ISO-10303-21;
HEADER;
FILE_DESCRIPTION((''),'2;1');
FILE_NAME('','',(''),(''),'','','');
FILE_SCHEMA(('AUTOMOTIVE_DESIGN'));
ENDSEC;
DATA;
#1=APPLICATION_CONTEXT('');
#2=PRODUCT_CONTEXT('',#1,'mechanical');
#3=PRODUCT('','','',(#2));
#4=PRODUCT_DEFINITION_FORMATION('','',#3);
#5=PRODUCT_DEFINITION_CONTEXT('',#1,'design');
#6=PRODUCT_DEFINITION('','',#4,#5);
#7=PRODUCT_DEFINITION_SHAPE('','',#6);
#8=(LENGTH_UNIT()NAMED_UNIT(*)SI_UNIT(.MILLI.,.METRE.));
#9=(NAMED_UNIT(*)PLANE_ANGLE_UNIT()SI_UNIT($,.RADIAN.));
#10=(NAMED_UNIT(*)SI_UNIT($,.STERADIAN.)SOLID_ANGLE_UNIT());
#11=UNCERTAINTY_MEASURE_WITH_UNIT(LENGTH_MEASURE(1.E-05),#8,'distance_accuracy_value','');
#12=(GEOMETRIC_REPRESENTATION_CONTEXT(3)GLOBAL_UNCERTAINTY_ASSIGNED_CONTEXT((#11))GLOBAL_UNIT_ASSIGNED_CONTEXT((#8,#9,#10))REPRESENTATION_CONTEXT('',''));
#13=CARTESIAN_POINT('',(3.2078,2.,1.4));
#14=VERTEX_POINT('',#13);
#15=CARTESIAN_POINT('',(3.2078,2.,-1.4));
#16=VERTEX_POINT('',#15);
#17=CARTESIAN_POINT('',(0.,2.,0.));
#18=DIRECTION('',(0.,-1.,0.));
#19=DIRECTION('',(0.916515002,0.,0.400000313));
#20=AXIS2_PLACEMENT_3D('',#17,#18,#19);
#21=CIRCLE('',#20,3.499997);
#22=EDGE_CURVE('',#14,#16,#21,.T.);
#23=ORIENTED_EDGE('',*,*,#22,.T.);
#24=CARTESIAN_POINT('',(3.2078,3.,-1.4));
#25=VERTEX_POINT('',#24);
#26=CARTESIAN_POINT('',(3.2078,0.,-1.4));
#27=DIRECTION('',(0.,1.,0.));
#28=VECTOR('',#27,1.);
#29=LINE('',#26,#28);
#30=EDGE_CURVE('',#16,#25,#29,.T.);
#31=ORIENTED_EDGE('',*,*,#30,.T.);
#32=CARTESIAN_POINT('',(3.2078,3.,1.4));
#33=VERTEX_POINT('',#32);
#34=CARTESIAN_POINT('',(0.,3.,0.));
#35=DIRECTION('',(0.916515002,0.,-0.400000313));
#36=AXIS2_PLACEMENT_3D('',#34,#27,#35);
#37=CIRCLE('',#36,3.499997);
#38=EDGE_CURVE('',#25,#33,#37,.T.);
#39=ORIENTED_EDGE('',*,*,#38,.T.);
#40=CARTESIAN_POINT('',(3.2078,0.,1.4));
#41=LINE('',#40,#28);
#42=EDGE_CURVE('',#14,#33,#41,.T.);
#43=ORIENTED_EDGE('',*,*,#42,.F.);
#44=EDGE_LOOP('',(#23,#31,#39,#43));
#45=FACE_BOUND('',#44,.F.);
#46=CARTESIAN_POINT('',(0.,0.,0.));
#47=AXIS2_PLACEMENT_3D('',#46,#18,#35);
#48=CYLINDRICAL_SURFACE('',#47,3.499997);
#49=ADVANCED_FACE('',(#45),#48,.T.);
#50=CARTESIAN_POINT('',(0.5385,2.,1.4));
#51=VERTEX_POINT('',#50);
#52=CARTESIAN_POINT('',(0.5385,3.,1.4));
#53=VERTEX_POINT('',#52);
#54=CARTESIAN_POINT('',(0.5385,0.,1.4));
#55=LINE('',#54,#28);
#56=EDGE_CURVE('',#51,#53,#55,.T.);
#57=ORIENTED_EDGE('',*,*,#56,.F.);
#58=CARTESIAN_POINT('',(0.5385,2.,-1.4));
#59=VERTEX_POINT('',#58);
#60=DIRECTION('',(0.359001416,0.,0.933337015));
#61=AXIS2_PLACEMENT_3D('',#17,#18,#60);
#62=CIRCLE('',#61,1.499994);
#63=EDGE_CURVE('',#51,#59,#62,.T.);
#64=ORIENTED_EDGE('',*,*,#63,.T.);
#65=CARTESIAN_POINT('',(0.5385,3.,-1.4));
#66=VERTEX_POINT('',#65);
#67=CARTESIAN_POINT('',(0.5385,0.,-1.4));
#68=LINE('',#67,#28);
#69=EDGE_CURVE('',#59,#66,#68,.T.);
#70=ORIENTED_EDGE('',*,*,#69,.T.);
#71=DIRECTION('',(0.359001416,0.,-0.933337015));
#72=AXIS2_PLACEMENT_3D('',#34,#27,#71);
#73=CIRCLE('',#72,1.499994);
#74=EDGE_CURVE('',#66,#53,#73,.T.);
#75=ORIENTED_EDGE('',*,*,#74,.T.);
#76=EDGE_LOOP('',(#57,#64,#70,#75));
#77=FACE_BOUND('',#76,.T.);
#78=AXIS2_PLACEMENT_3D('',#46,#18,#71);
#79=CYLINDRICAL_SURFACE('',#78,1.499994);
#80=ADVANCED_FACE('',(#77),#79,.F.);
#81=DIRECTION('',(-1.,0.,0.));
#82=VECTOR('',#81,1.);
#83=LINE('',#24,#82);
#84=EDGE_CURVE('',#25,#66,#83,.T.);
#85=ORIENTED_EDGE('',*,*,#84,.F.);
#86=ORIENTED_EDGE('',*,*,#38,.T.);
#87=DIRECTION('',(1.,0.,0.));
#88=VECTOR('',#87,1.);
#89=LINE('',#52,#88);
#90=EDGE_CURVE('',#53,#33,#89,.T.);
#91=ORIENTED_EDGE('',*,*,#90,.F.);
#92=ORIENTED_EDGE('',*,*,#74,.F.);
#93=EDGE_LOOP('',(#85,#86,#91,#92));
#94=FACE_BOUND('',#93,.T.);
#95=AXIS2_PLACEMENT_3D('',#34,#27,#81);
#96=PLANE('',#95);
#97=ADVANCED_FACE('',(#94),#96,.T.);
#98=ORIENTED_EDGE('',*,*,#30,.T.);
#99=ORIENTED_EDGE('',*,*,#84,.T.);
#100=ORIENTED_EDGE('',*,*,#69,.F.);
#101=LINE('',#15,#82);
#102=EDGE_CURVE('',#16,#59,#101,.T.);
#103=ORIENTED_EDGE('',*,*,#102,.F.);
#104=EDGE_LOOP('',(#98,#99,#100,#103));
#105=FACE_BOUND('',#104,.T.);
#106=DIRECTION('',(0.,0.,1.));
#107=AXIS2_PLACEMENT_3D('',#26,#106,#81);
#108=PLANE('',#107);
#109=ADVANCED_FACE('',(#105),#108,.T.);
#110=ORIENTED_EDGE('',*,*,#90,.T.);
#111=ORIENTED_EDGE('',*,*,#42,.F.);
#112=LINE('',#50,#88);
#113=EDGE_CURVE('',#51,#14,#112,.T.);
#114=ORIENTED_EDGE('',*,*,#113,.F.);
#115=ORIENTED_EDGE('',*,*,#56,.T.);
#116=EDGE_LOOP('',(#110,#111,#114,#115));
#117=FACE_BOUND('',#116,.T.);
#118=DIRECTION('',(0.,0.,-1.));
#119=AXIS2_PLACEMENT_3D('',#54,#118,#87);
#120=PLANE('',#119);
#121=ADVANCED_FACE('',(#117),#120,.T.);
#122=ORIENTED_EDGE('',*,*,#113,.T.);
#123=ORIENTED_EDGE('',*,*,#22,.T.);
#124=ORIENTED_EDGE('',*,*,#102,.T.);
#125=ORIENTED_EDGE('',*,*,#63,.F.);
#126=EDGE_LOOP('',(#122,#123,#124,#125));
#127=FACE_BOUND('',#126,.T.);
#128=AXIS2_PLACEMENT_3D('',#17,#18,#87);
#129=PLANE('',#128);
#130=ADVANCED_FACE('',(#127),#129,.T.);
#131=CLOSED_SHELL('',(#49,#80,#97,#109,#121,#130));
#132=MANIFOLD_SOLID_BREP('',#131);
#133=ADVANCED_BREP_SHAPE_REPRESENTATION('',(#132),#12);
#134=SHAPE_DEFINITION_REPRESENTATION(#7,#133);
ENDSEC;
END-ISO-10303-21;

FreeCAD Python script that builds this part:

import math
import FreeCAD as App
import Part
import Sketcher
from FreeCAD import Vector

doc = App.newDocument("Part")
body = doc.addObject("PartDesign::Body", "Body")

# Sketch on XZ plane
sketch1 = doc.addObject("Sketcher::SketchObject", "Sketch")
body.addObject(sketch1)
sketch1.AttachmentSupport = (doc.XZ_Plane, [""])
sketch1.MapMode = "FlatFace"
sketch1.addGeometry(Part.LineSegment(Vector(3.2078, 1.4, 0), Vector(0.5385, 1.4, 0)), False)
sketch1.addGeometry(Part.ArcOfCircle(Part.Circle(Vector(0, 0, 0), Vector(0, 0, 1), 1.499994), math.radians(68.961118), math.radians(291.038882)), False)
sketch1.addGeometry(Part.LineSegment(Vector(0.5385, -1.4, 0), Vector(3.2078, -1.4, 0)), False)
sketch1.addGeometry(Part.ArcOfCircle(Part.Circle(Vector(0, 0, 0), Vector(0, 0, 1), 3.499997), math.radians(23.578198), math.radians(336.421802)), False)
sketch1.addConstraint(Sketcher.Constraint("Coincident", 0, 2, 1, 1))
sketch1.addConstraint(Sketcher.Constraint("Coincident", 1, 2, 2, 1))
sketch1.addConstraint(Sketcher.Constraint("Coincident", 2, 2, 3, 2))
sketch1.addConstraint(Sketcher.Constraint("Coincident", 3, 1, 0, 1))
sketch1.addConstraint(Sketcher.Constraint("Horizontal", 0))
sketch1.addConstraint(Sketcher.Constraint("Horizontal", 2))
sketch1.addConstraint(Sketcher.Constraint("Coincident", 1, 3, -1, 1))
sketch1.addConstraint(Sketcher.Constraint("Coincident", 3, 3, -1, 1))
sketch1.addConstraint(Sketcher.Constraint("Vertical", 0, 2, 1, 2))
sketch1.addConstraint(Sketcher.Constraint("Radius", 1, 1.5))
sketch1.addConstraint(Sketcher.Constraint("Radius", 3, 3.5))
sketch1.addConstraint(Sketcher.Constraint("DistanceY", 1, 2, 0, 2, 2.8))
pad1 = doc.addObject("PartDesign::Pad", "Pad")
body.addObject(pad1)
pad1.Profile = sketch1
pad1.Length = 3
pad1.Reversed = True

# Sketch on XZ plane
sketch2 = doc.addObject("Sketcher::SketchObject", "Sketch001")
body.addObject(sketch2)
sketch2.AttachmentSupport = (doc.XZ_Plane, [""])
sketch2.MapMode = "FlatFace"
sketch2.addGeometry(Part.ArcOfCircle(Part.Circle(Vector(0, 0, 0), Vector(0, 0, 1), 1.499994), math.radians(68.961118), math.radians(291.038882)), False)
sketch2.addGeometry(Part.LineSegment(Vector(0.5385, 1.4, 0), Vector(3.2078, 1.4, 0)), False)
sketch2.addGeometry(Part.ArcOfCircle(Part.Circle(Vector(0, 0, 0), Vector(0, 0, 1), 3.499997), math.radians(23.578198), math.radians(336.421802)), False)
sketch2.addGeometry(Part.LineSegment(Vector(3.2078, -1.4, 0), Vector(0.5385, -1.4, 0)), False)
sketch2.addConstraint(Sketcher.Constraint("Coincident", 0, 1, 1, 1))
sketch2.addConstraint(Sketcher.Constraint("Coincident", 1, 2, 2, 1))
sketch2.addConstraint(Sketcher.Constraint("Coincident", 2, 2, 3, 1))
sketch2.addConstraint(Sketcher.Constraint("Coincident", 3, 2, 0, 2))
sketch2.addConstraint(Sketcher.Constraint("Horizontal", 1))
sketch2.addConstraint(Sketcher.Constraint("Horizontal", 3))
sketch2.addConstraint(Sketcher.Constraint("Coincident", 0, 3, -1, 1))
sketch2.addConstraint(Sketcher.Constraint("Coincident", 2, 3, -1, 1))
sketch2.addConstraint(Sketcher.Constraint("Vertical", 1, 2, 2, 2))
sketch2.addConstraint(Sketcher.Constraint("Radius", 0, 1.5))
sketch2.addConstraint(Sketcher.Constraint("Radius", 2, 3.5))
sketch2.addConstraint(Sketcher.Constraint("DistanceY", -1, 1, 0, 1, 1.4))
pocket1 = doc.addObject("PartDesign::Pocket", "Pocket")
body.addObject(pocket1)
pocket1.Profile = sketch2
pocket1.Length = 2

doc.recompute()
